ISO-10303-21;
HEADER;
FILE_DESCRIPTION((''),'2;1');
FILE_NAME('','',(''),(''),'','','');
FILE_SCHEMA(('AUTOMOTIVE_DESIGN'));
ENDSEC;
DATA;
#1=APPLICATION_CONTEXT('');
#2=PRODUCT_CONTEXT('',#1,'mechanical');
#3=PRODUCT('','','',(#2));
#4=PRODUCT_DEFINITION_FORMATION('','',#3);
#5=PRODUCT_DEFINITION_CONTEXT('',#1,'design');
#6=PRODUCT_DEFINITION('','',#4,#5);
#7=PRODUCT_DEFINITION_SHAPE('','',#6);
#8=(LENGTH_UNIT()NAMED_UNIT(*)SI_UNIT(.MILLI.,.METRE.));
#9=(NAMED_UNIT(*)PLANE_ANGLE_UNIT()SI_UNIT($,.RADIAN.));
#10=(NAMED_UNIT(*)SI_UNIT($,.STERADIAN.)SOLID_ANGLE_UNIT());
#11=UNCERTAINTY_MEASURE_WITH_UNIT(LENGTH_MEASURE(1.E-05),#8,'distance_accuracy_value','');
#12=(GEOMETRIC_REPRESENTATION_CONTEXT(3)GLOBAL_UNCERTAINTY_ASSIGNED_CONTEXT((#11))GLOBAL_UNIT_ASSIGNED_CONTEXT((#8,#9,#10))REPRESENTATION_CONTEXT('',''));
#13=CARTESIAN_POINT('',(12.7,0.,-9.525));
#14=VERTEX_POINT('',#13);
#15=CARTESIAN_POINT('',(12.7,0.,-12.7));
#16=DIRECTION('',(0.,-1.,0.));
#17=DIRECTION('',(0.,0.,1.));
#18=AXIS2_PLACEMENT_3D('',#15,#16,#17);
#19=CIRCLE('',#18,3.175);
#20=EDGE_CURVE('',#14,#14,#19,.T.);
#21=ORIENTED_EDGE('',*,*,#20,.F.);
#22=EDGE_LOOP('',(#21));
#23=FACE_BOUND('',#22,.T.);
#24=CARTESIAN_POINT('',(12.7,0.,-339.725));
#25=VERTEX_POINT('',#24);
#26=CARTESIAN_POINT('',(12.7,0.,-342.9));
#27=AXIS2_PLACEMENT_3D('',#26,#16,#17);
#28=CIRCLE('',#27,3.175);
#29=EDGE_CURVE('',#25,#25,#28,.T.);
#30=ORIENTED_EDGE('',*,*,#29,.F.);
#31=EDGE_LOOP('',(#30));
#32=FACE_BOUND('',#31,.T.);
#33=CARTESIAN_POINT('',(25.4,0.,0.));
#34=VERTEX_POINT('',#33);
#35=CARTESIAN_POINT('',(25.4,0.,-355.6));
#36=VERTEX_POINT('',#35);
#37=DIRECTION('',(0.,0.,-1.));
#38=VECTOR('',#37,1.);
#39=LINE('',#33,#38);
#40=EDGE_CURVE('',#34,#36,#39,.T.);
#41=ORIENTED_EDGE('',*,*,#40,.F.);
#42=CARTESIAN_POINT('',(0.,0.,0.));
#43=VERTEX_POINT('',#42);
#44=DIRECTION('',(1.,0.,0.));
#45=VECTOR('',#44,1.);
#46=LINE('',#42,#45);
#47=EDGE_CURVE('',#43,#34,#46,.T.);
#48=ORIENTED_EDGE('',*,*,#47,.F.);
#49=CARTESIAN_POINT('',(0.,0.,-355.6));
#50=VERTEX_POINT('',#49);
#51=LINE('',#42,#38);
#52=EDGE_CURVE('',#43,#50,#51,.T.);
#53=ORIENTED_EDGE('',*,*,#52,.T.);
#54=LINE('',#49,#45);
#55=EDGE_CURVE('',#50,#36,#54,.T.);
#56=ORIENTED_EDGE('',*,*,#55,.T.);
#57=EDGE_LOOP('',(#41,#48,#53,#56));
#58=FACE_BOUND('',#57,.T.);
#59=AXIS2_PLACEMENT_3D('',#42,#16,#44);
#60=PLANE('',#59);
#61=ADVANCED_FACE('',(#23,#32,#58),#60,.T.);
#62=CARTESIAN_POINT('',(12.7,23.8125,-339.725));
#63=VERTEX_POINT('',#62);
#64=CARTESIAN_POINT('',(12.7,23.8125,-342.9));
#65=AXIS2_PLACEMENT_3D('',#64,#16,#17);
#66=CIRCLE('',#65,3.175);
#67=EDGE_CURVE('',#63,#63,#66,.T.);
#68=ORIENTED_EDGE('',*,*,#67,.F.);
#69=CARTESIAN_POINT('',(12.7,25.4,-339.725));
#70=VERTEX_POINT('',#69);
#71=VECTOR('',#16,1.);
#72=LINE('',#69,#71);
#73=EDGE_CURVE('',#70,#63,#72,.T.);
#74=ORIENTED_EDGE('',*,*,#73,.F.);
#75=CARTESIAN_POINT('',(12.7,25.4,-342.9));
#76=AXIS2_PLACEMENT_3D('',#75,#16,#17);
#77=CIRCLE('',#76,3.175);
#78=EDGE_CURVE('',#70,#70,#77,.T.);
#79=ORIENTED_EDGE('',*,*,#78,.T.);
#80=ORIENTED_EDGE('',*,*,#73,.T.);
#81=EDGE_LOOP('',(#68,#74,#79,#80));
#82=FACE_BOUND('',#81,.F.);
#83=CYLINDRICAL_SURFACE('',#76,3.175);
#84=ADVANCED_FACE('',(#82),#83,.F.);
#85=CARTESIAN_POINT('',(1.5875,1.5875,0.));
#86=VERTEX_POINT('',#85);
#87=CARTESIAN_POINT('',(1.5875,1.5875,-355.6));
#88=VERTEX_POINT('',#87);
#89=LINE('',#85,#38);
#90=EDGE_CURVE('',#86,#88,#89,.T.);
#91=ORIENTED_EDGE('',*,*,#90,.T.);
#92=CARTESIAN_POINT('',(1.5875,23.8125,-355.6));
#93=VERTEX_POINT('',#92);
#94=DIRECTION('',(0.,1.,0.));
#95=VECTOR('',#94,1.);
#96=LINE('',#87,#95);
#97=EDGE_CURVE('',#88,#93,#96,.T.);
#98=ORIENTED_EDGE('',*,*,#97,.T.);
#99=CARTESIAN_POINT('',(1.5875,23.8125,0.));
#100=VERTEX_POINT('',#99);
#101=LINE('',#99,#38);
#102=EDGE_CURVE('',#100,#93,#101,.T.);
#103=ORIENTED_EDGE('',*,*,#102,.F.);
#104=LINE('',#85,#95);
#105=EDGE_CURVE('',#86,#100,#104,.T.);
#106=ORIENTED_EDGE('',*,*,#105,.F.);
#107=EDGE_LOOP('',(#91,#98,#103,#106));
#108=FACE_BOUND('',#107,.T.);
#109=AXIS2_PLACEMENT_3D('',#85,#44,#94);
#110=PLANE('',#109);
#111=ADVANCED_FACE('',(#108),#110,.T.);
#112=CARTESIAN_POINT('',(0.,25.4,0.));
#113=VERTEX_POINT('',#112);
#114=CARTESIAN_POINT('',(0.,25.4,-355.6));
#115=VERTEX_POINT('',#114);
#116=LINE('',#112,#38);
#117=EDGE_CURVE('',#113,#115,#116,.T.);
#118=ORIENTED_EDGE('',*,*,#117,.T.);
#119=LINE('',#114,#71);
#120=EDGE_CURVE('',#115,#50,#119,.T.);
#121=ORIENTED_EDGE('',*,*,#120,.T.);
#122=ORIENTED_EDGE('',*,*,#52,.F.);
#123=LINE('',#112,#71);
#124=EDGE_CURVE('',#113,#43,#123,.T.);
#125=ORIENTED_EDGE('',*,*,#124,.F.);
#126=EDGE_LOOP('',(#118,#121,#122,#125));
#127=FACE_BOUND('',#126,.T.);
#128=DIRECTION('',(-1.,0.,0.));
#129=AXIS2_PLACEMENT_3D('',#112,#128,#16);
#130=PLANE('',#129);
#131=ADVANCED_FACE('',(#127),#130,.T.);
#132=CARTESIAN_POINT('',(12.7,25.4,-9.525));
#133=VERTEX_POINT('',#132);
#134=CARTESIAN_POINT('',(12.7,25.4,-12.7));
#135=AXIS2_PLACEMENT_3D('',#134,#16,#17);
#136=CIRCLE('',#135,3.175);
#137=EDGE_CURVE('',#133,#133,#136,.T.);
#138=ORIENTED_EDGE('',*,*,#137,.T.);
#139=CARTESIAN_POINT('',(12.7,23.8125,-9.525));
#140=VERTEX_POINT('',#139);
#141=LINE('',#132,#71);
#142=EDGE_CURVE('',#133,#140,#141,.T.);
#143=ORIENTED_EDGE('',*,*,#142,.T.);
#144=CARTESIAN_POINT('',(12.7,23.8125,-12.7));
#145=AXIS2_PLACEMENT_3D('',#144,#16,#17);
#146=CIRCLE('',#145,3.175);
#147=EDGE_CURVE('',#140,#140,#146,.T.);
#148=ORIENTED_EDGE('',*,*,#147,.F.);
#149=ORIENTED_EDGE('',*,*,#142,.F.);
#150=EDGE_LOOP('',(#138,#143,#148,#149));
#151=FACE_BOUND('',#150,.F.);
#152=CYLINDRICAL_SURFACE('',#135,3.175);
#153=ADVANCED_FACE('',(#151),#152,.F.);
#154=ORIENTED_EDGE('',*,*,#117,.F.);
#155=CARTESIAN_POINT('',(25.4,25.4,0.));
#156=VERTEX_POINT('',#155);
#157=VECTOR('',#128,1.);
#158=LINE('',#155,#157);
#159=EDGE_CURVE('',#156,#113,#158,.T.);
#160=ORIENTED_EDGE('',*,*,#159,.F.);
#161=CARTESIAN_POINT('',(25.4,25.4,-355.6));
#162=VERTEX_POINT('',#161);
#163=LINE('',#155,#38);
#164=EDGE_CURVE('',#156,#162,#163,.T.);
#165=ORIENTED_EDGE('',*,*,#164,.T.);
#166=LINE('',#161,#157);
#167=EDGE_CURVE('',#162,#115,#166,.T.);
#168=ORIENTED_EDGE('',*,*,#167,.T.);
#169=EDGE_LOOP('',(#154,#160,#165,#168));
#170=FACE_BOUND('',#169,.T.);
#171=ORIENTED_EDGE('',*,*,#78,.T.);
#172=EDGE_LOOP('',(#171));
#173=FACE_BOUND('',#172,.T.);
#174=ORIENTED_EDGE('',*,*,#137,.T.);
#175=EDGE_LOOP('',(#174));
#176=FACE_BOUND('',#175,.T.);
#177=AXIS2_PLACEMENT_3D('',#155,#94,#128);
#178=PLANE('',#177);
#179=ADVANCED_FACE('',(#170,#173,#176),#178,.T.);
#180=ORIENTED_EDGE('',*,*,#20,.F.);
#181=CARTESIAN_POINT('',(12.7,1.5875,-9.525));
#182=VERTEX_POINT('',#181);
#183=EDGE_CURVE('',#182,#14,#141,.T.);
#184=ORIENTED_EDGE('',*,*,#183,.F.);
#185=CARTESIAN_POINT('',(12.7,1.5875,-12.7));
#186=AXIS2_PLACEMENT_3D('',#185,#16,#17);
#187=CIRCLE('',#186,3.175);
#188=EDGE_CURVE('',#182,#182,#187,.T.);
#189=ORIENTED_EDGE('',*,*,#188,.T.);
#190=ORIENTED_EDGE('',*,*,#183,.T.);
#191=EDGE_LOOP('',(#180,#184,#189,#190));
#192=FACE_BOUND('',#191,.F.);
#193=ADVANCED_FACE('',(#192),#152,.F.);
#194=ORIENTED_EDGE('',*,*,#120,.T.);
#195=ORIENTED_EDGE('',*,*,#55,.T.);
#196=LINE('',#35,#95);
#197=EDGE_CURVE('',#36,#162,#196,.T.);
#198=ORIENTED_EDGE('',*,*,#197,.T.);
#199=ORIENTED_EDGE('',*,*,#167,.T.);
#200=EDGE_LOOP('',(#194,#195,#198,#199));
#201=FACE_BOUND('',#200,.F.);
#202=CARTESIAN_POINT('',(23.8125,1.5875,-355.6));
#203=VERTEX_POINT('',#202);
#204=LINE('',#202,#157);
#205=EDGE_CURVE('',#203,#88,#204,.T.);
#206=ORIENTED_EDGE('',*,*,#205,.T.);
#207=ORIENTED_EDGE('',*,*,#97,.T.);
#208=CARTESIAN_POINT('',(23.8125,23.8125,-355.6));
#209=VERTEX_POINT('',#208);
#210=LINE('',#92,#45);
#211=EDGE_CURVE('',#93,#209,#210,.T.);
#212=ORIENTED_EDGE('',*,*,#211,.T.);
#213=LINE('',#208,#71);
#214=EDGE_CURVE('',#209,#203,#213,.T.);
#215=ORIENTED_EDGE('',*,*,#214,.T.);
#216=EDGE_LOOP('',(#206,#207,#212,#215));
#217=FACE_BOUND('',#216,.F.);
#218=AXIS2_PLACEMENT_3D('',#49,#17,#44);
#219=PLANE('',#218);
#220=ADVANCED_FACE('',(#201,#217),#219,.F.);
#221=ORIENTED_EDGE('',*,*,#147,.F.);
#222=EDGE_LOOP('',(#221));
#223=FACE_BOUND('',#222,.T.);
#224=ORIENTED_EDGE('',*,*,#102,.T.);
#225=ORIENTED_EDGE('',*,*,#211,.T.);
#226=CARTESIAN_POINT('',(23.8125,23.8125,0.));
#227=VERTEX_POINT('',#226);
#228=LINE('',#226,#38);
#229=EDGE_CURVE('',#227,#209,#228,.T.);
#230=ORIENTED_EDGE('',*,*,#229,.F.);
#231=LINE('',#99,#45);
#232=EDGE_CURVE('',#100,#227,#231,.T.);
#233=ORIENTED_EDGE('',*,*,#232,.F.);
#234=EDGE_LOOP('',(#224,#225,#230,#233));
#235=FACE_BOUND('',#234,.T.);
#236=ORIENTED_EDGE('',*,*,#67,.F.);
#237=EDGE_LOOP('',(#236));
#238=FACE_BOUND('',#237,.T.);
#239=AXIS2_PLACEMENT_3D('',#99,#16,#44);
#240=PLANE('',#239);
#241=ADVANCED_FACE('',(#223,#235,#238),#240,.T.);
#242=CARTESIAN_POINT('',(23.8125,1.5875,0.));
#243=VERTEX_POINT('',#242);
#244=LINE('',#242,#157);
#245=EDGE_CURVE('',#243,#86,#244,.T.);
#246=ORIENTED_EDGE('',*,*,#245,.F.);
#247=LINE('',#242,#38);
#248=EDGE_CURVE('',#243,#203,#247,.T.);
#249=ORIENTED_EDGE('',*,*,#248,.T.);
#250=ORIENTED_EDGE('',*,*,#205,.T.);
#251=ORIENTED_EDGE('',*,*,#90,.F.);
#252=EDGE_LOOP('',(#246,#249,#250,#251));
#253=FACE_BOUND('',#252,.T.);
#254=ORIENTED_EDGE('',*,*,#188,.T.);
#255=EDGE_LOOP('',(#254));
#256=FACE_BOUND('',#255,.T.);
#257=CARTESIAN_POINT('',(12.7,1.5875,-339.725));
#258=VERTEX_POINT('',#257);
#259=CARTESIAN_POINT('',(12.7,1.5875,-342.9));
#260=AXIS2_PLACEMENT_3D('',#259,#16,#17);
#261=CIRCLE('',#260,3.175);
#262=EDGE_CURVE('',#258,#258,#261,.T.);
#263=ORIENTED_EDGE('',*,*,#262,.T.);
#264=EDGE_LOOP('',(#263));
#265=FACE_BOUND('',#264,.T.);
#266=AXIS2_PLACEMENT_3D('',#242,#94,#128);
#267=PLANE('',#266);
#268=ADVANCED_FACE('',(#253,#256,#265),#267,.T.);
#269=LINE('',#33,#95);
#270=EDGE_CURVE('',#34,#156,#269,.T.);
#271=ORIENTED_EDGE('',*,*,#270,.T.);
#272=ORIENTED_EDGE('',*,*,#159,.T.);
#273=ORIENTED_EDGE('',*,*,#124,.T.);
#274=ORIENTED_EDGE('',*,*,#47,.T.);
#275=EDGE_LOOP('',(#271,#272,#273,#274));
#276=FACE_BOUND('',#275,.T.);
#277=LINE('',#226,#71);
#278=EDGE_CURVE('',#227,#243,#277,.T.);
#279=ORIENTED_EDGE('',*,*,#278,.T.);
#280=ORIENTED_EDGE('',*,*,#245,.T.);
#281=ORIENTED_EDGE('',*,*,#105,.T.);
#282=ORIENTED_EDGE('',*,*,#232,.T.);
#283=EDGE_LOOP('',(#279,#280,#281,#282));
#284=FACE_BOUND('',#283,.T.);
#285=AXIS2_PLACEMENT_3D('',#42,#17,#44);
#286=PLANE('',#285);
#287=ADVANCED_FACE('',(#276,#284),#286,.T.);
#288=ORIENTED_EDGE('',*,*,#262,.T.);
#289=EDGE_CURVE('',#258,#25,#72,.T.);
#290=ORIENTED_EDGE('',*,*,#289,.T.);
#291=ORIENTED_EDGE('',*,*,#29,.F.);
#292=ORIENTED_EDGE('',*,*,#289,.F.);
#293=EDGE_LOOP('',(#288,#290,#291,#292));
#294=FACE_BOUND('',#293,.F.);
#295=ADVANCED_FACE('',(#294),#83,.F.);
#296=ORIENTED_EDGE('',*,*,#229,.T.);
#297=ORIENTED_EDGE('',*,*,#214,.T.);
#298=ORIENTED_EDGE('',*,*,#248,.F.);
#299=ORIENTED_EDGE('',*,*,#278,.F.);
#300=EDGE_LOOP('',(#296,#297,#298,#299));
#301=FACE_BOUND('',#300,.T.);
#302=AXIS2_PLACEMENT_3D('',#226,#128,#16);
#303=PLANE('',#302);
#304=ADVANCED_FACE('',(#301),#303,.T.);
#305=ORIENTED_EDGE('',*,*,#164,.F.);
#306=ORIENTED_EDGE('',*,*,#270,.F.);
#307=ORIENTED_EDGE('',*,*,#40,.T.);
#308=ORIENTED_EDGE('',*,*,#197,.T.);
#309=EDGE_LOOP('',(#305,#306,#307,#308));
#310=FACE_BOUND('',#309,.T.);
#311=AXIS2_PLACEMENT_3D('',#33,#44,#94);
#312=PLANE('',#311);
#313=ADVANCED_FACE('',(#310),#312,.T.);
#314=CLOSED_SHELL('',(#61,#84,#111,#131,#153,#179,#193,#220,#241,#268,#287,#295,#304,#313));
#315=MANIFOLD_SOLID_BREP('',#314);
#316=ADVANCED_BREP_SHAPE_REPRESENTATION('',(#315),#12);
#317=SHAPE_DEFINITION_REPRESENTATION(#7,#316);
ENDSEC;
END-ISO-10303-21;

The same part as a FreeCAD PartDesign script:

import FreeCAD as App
import Part
import Sketcher
from FreeCAD import Vector
Q = App.Units.Quantity

doc = App.newDocument("Part")
body = doc.addObject("PartDesign::Body", "Body")

# Sketch on XY plane
sketch1 = doc.addObject("Sketcher::SketchObject", "Sketch")
body.addObject(sketch1)
sketch1.AttachmentSupport = (doc.XY_Plane, [""])
sketch1.MapMode = "FlatFace"
sketch1.addGeometry(Part.LineSegment(Vector(0, 25, 0), Vector(0, 0, 0)), False)
sketch1.addGeometry(Part.LineSegment(Vector(0, 0, 0), Vector(25, 0, 0)), False)
sketch1.addGeometry(Part.LineSegment(Vector(25, 0, 0), Vector(25, 25, 0)), False)
sketch1.addGeometry(Part.LineSegment(Vector(25, 25, 0), Vector(0, 25, 0)), False)
sketch1.addGeometry(Part.LineSegment(Vector(2, 2, 0), Vector(2, 24, 0)), False)
sketch1.addGeometry(Part.LineSegment(Vector(2, 24, 0), Vector(24, 24, 0)), False)
sketch1.addGeometry(Part.LineSegment(Vector(24, 24, 0), Vector(24, 2, 0)), False)
sketch1.addGeometry(Part.LineSegment(Vector(24, 2, 0), Vector(2, 2, 0)), False)
sketch1.addConstraint(Sketcher.Constraint("Coincident", 0, 2, 1, 1))
sketch1.addConstraint(Sketcher.Constraint("Coincident", 1, 2, 2, 1))
sketch1.addConstraint(Sketcher.Constraint("Coincident", 2, 2, 3, 1))
sketch1.addConstraint(Sketcher.Constraint("Coincident", 3, 2, 0, 1))
sketch1.addConstraint(Sketcher.Constraint("Coincident", 4, 2, 5, 1))
sketch1.addConstraint(Sketcher.Constraint("Coincident", 5, 2, 6, 1))
sketch1.addConstraint(Sketcher.Constraint("Coincident", 6, 2, 7, 1))
sketch1.addConstraint(Sketcher.Constraint("Coincident", 7, 2, 4, 1))
sketch1.addConstraint(Sketcher.Constraint("Vertical", 0))
sketch1.addConstraint(Sketcher.Constraint("Horizontal", 1))
sketch1.addConstraint(Sketcher.Constraint("Vertical", 2))
sketch1.addConstraint(Sketcher.Constraint("Horizontal", 3))
sketch1.addConstraint(Sketcher.Constraint("Vertical", 4))
sketch1.addConstraint(Sketcher.Constraint("Horizontal", 5))
sketch1.addConstraint(Sketcher.Constraint("Vertical", 6))
sketch1.addConstraint(Sketcher.Constraint("Horizontal", 7))
sketch1.addConstraint(Sketcher.Constraint("Coincident", 0, 2, -1, 1))
sketch1.addConstraint(Sketcher.Constraint("Equal", 3, 0))
sketch1.addConstraint(Sketcher.Constraint("Equal", 7, 4))
sketch1.addConstraint(Sketcher.Constraint("DistanceX", 1, 1, 1, 2, Q("1 in")))
sketch1.addConstraint(Sketcher.Constraint("DistanceX", -1, 1, 4, 2, Q("0.0625 in")))
sketch1.addConstraint(Sketcher.Constraint("DistanceY", -1, 1, 6, 2, Q("0.0625 in")))
sketch1.addConstraint(Sketcher.Constraint("DistanceY", 4, 2, 3, 2, Q("0.0625 in")))
pad1 = doc.addObject("PartDesign::Pad", "Pad")
body.addObject(pad1)
pad1.Profile = sketch1
pad1.Length = Q("14 in")
pad1.Reversed = True

# Sketch on XZ plane
sketch2 = doc.addObject("Sketcher::SketchObject", "Sketch001")
body.addObject(sketch2)
sketch2.AttachmentSupport = (doc.XZ_Plane, [""])
sketch2.MapMode = "FlatFace"
sketch2.AttachmentOffset = App.Placement(Vector(0, 0, -1 * 25.4), App.Rotation())
sketch2.addGeometry(Part.Circle(Vector(12.7, -12.7, 0), Vector(0, 0, 1), 3.2), False)
sketch2.addGeometry(Part.Circle(Vector(12.7, -342.9, 0), Vector(0, 0, 1), 3.2), False)
sketch2.addConstraint(Sketcher.Constraint("Equal", 0, 1))
sketch2.addConstraint(Sketcher.Constraint("Vertical", 0, 3, 1, 3))
sketch2.addConstraint(Sketcher.Constraint("Diameter", 0, Q("0.25 in")))
sketch2.addConstraint(Sketcher.Constraint("DistanceY", 1, 3, 0, 3, Q("13 in")))
sketch2.addConstraint(Sketcher.Constraint("DistanceX", -1, 1, 0, 3, Q("0.5 in")))
sketch2.addConstraint(Sketcher.Constraint("DistanceY", 0, 3, -1, 1, Q("0.5 in")))
doc.recompute()
hole = doc.addObject("PartDesign::Hole", "Hole")
body.addObject(hole)
hole.Profile = sketch2
hole.ThreadType = "None"
hole.Diameter = Q("0.25 in")
hole.DepthType = "Dimension"
hole.Depth = Q("1 in")
hole.DrillPoint = "Angled"
hole.DrillPointAngle = 118
hole.Reversed = True

doc.recompute()
